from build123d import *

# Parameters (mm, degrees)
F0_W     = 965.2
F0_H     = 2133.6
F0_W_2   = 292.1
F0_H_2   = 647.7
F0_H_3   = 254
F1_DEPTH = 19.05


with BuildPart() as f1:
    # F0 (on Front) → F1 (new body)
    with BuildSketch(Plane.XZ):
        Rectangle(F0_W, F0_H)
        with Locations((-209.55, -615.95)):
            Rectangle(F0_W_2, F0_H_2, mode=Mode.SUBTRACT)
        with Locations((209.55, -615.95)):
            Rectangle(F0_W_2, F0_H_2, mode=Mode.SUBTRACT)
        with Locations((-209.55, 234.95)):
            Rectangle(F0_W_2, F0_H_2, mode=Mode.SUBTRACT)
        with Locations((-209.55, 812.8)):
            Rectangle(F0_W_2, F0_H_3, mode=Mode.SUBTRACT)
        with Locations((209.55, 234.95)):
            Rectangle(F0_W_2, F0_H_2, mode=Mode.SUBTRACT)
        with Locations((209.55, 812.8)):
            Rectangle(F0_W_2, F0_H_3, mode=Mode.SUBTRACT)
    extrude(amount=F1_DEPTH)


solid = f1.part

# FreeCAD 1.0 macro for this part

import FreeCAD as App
import Part
import Sketcher
Q = App.Units.Quantity


def add_polygon(sketch, points):
    """Adds a closed chain of lines whose ends are joined by coincident constraints."""
    first, n = sketch.GeometryCount, len(points)
    for a, b in zip(points, points[1:] + points[:1]):
        sketch.addGeometry(Part.LineSegment(App.Vector(*a, 0), App.Vector(*b, 0)), False)
    for i in range(n):
        sketch.addConstraint(Sketcher.Constraint("Coincident", first + i, 2, first + (i + 1) % n, 1))

doc = App.newDocument("Part")
params = doc.addObject("Spreadsheet::Sheet", "Params")
for row, (alias, value) in enumerate([
    ("sketch1_width", "38 in"),
    ("sketch1_height", "84 in"),
    ("sketch1_height2", "10 in"),
    ("sketch1_width2", "11.5 in"),
    ("sketch1_height3", "25.5 in"),
    ("pad1_length", "0.75 in"),
], start=1):
    params.set(f"A{row}", alias)
    params.set(f"B{row}", "=" + value)
    params.setAlias(f"B{row}", alias)

body = doc.addObject("PartDesign::Body", "Body")

sketch1 = body.newObject("Sketcher::SketchObject", "Sketch")
sketch1.AttachmentSupport = (doc.getObject("XZ_Plane"), [""])
sketch1.MapMode = "FlatFace"
add_polygon(sketch1, [(-483, 1067), (-483, -1067), (483, -1067), (483, 1067)])
add_polygon(sketch1, [(-64, -940), (-356, -940), (-356, -292), (-64, -292)])
add_polygon(sketch1, [(356, -940), (64, -940), (64, -292), (356, -292)])
add_polygon(sketch1, [(-64, -89), (-356, -89), (-356, 559), (-64, 559)])
add_polygon(sketch1, [(-64, 686), (-356, 686), (-356, 940), (-64, 940)])
add_polygon(sketch1, [(356, -89), (64, -89), (64, 559), (356, 559)])
add_polygon(sketch1, [(356, 686), (64, 686), (64, 940), (356, 940)])
sketch1.addConstraint(Sketcher.Constraint("Vertical", 0))
sketch1.addConstraint(Sketcher.Constraint("Horizontal", 1))
sketch1.addConstraint(Sketcher.Constraint("Vertical", 2))
sketch1.addConstraint(Sketcher.Constraint("Horizontal", 3))
sketch1.addConstraint(Sketcher.Constraint("Horizontal", 4))
sketch1.addConstraint(Sketcher.Constraint("Vertical", 5))
sketch1.addConstraint(Sketcher.Constraint("Horizontal", 6))
sketch1.addConstraint(Sketcher.Constraint("Vertical", 7))
sketch1.addConstraint(Sketcher.Constraint("Horizontal", 8))
sketch1.addConstraint(Sketcher.Constraint("Vertical", 9))
sketch1.addConstraint(Sketcher.Constraint("Horizontal", 10))
sketch1.addConstraint(Sketcher.Constraint("Vertical", 11))
sketch1.addConstraint(Sketcher.Constraint("Horizontal", 12))
sketch1.addConstraint(Sketcher.Constraint("Vertical", 13))
sketch1.addConstraint(Sketcher.Constraint("Horizontal", 14))
sketch1.addConstraint(Sketcher.Constraint("Vertical", 15))
sketch1.addConstraint(Sketcher.Constraint("Horizontal", 16))
sketch1.addConstraint(Sketcher.Constraint("Vertical", 17))
sketch1.addConstraint(Sketcher.Constraint("Horizontal", 18))
sketch1.addConstraint(Sketcher.Constraint("Vertical", 19))
sketch1.addConstraint(Sketcher.Constraint("Horizontal", 20))
sketch1.addConstraint(Sketcher.Constraint("Vertical", 21))
sketch1.addConstraint(Sketcher.Constraint("Horizontal", 22))
sketch1.addConstraint(Sketcher.Constraint("Vertical", 23))
sketch1.addConstraint(Sketcher.Constraint("Horizontal", 24))
sketch1.addConstraint(Sketcher.Constraint("Vertical", 25))
sketch1.addConstraint(Sketcher.Constraint("Horizontal", 26))
sketch1.addConstraint(Sketcher.Constraint("Vertical", 27))
sketch1.addConstraint(Sketcher.Constraint("Symmetric", 0, 2, 2, 2, -1, 1))
sketch1.addConstraint(Sketcher.Constraint("Symmetric", 11, 2, 17, 2, -1, 1))
sketch1.addConstraint(Sketcher.Constraint("Symmetric", 7, 2, 25, 2, -1, 1))
sketch1.addConstraint(Sketcher.Constraint("Symmetric", 7, 2, 8, 2, -2))
sketch1.addConstraint(Sketcher.Constraint("Symmetric", 5, 2, 10, 2, -2))
sketch1.addConstraint(Sketcher.Constraint("Symmetric", 15, 2, 20, 2, -2))
sketch1.addConstraint(Sketcher.Constraint("Symmetric", 13, 2, 22, 2, -2))
sketch1.addConstraint(Sketcher.Constraint("Symmetric", 19, 2, 24, 2, -2))
sketch1.addConstraint(Sketcher.Constraint("Vertical", 5, 2, 12, 2))
sketch1.addConstraint(Sketcher.Constraint("Vertical", 7, 2, 14, 2))
sketch1.addConstraint(Sketcher.Constraint("Vertical", 23, 2, 26, 2))
sketch1.addConstraint(Sketcher.Constraint("Equal", 11, 13))
sketch1.addConstraint(Sketcher.Constraint("DistanceX", 1, 1, 1, 2, Q("38 in")))
sketch1.addConstraint(Sketcher.Constraint("DistanceY", 0, 2, 0, 1, Q("84 in")))
sketch1.addConstraint(Sketcher.Constraint("DistanceY", 17, 1, 17, 2, Q("10 in")))
sketch1.addConstraint(Sketcher.Constraint("DistanceX", 4, 2, 4, 1, Q("11.5 in")))
sketch1.addConstraint(Sketcher.Constraint("DistanceY", 5, 1, 5, 2, Q("25.5 in")))
sketch1.addConstraint(Sketcher.Constraint("DistanceX", 4, 2, -1, 1, Q("14 in")))
sketch1.addConstraint(Sketcher.Constraint("DistanceY", 4, 2, -1, 1, Q("37 in")))
sketch1.addConstraint(Sketcher.Constraint("DistanceY", -1, 1, 13, 2, Q("22 in")))
sketch1.setExpression("Constraints[68]", "Params.sketch1_width")
sketch1.setExpression("Constraints[69]", "Params.sketch1_height")
sketch1.setExpression("Constraints[70]", "Params.sketch1_height2")
sketch1.setExpression("Constraints[71]", "Params.sketch1_width2")
sketch1.setExpression("Constraints[72]", "Params.sketch1_height3")
pad1 = body.newObject("PartDesign::Pad", "Pad")
pad1.Profile = sketch1
pad1.setExpression("Length", "Params.pad1_length")

doc.recompute()
